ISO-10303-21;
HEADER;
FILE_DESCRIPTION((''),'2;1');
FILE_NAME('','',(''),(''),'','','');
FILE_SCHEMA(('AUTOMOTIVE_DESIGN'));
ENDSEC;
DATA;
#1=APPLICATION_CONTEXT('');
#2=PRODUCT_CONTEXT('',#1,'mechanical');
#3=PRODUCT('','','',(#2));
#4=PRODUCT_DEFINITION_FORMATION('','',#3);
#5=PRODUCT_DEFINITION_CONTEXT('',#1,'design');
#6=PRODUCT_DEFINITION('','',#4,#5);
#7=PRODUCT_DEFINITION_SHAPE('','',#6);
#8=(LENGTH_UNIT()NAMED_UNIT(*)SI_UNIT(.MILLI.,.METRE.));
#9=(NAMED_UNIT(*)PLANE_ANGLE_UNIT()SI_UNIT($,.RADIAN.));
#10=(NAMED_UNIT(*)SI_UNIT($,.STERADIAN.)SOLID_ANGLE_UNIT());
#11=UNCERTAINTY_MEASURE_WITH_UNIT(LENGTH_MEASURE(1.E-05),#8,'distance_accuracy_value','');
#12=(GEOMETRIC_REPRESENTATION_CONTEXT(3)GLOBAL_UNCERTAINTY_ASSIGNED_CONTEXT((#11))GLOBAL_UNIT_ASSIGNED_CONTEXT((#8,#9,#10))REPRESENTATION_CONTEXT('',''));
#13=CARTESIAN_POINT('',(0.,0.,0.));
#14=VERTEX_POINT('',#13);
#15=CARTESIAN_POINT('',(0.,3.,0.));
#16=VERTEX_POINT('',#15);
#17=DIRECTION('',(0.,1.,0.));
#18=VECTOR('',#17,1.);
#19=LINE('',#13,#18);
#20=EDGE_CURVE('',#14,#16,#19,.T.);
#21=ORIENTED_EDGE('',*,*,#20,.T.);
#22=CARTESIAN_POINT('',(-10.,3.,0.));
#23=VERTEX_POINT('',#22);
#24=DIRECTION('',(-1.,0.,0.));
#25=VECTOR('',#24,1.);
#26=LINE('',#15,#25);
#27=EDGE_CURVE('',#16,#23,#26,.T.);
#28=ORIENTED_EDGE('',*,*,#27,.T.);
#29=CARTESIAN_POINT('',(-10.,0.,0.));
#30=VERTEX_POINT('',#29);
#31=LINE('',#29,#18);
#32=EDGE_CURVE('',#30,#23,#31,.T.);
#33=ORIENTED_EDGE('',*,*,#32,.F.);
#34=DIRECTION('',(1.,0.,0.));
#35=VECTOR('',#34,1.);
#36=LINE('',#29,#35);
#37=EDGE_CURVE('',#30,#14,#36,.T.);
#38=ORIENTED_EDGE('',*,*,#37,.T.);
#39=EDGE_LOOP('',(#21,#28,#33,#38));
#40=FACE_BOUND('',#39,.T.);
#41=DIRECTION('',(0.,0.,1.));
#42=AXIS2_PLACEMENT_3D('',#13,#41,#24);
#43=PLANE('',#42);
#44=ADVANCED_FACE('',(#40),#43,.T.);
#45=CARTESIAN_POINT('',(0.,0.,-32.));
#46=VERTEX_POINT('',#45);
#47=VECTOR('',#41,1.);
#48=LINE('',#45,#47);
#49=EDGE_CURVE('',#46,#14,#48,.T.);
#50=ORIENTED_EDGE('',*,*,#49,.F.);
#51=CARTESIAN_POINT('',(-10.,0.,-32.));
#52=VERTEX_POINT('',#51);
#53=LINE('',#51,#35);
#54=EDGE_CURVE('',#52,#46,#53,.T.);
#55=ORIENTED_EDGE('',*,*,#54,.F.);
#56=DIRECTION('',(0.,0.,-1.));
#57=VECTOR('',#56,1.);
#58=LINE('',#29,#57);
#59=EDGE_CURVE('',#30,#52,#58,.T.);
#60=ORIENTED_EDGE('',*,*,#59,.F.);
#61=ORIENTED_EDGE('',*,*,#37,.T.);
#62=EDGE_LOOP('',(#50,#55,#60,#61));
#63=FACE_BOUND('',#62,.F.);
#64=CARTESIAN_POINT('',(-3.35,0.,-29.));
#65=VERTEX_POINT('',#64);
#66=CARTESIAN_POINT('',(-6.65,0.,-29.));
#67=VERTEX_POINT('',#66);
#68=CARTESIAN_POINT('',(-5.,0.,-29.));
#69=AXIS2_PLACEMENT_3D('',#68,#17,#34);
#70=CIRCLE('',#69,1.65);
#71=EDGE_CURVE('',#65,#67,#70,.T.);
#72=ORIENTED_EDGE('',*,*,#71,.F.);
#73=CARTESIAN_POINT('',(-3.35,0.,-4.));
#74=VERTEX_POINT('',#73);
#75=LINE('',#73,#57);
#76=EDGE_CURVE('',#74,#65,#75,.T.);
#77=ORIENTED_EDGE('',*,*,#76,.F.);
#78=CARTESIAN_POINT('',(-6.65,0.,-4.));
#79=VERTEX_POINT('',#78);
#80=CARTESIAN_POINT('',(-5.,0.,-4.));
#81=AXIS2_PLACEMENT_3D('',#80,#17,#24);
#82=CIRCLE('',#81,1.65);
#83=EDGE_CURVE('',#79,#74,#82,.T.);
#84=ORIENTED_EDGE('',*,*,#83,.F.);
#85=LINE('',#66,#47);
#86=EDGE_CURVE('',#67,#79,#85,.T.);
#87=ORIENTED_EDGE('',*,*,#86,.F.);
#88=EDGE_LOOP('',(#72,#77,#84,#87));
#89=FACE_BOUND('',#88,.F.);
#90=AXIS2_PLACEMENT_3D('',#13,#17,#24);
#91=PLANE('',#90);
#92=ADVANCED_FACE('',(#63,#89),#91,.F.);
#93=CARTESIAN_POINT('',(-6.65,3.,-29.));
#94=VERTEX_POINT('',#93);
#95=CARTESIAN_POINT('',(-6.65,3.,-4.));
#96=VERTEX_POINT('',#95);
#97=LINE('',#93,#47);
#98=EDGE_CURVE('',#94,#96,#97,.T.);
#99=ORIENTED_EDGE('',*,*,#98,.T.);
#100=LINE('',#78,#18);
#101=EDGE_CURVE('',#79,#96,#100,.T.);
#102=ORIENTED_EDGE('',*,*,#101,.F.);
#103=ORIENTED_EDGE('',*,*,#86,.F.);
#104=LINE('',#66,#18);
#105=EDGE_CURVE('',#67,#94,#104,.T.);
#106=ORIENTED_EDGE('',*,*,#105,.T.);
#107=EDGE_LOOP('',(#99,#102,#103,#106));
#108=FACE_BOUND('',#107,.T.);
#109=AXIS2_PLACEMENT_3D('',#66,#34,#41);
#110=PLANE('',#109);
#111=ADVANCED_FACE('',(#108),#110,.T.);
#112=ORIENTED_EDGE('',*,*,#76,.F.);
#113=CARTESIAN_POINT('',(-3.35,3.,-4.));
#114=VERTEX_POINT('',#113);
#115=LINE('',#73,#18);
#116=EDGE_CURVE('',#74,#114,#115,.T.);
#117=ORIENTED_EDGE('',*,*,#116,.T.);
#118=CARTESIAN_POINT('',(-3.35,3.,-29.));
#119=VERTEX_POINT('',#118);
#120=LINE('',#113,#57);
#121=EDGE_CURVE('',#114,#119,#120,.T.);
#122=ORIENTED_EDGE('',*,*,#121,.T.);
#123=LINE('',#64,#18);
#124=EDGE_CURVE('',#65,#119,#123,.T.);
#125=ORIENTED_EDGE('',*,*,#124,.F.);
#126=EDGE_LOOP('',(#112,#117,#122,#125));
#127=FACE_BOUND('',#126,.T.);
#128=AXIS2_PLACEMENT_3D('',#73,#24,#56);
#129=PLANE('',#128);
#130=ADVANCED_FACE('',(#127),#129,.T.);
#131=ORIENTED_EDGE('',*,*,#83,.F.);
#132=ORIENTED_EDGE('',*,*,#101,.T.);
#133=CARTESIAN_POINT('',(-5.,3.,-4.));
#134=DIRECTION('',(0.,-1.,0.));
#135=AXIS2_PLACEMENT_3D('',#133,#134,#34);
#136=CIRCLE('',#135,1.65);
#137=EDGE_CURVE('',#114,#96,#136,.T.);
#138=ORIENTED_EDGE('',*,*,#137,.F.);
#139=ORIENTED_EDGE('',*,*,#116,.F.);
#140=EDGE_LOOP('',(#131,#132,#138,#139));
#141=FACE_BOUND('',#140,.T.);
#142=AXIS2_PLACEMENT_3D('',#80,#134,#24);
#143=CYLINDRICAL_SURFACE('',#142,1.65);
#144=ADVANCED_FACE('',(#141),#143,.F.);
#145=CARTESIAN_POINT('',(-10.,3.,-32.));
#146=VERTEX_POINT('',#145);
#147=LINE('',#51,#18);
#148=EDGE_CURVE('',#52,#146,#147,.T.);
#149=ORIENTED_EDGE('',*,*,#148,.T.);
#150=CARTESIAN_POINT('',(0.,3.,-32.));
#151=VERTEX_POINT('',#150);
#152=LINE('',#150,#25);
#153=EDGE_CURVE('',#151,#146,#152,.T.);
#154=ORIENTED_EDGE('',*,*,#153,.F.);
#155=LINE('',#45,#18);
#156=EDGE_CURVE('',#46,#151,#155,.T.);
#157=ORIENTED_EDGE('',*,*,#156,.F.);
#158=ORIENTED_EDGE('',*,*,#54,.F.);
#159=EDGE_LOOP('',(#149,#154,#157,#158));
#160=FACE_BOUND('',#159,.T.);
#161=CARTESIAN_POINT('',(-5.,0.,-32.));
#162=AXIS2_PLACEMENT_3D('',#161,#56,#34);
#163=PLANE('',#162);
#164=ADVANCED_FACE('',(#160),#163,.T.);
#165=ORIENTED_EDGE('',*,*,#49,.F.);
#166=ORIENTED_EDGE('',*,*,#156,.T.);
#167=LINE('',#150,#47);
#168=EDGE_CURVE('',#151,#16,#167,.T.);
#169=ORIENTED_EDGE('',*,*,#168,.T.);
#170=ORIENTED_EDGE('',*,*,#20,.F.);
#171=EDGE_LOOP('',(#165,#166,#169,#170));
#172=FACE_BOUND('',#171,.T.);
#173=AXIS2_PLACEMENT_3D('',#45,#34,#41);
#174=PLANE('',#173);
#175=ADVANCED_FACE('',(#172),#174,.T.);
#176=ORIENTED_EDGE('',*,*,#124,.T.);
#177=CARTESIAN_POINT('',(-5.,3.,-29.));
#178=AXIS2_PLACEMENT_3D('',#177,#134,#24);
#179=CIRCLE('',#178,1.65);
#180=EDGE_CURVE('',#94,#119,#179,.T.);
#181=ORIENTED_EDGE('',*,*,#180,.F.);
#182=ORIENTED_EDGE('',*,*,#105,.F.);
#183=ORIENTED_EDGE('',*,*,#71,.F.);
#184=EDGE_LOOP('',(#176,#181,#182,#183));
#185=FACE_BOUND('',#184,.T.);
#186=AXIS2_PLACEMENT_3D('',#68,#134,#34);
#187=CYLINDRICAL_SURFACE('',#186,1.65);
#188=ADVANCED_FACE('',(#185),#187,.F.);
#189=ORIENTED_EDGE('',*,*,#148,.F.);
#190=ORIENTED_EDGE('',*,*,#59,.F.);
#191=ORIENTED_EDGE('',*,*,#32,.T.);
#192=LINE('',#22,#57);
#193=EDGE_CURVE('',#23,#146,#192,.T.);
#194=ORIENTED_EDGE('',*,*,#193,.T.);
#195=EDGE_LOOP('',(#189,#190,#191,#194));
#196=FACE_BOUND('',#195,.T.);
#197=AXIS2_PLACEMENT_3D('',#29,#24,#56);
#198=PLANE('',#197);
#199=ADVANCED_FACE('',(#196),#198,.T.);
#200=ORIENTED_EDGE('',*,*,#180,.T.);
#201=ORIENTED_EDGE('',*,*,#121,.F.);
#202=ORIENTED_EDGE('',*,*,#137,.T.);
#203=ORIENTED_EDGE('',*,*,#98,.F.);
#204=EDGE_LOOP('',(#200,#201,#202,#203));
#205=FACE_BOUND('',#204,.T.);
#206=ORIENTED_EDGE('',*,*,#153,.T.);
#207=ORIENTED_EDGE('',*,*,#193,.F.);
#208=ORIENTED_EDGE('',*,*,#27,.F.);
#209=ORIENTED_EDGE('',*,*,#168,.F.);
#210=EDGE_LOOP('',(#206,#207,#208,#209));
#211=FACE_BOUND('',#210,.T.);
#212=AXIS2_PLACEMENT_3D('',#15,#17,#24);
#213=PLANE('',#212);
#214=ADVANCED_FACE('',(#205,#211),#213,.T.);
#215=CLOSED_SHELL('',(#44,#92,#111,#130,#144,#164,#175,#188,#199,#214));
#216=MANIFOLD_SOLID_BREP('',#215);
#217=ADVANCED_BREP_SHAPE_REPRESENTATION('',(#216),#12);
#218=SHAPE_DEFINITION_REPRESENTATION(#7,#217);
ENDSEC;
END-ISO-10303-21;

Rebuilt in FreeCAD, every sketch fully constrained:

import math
import FreeCAD as App
import Part
import Sketcher
Q = App.Units.Quantity


def add_polygon(sketch, points):
    """Adds a closed chain of lines whose ends are joined by coincident constraints."""
    first, n = sketch.GeometryCount, len(points)
    for a, b in zip(points, points[1:] + points[:1]):
        sketch.addGeometry(Part.LineSegment(App.Vector(*a, 0), App.Vector(*b, 0)), False)
    for i in range(n):
        sketch.addConstraint(Sketcher.Constraint("Coincident", first + i, 2, first + (i + 1) % n, 1))

doc = App.newDocument("Part")
body = doc.addObject("PartDesign::Body", "Body")

# Sketch on XZ plane
sketch1 = body.newObject("Sketcher::SketchObject", "Sketch")
sketch1.AttachmentSupport = (doc.getObject("XZ_Plane"), [""])
sketch1.MapMode = "FlatFace"
add_polygon(sketch1, [(0, 0), (0, -32), (-10, -32), (-10, 0)])  # lines 0-3
sketch1.addGeometry(Part.ArcOfCircle(Part.Circle(App.Vector(-5, -4, 0), App.Vector(0, 0, 1), 1.65), math.radians(0), math.radians(180)), False)  # 4
sketch1.addGeometry(Part.LineSegment(App.Vector(-6.65, -4, 0), App.Vector(-6.65, -29, 0)), False)  # 5
sketch1.addGeometry(Part.ArcOfCircle(Part.Circle(App.Vector(-5, -29, 0), App.Vector(0, 0, 1), 1.65), math.radians(180), math.radians(360)), False)  # 6
sketch1.addGeometry(Part.LineSegment(App.Vector(-3.35, -29, 0), App.Vector(-3.35, -4, 0)), False)  # 7
sketch1.addConstraint(Sketcher.Constraint("Tangent", 4, 2, 5, 1))
sketch1.addConstraint(Sketcher.Constraint("Tangent", 5, 2, 6, 1))
sketch1.addConstraint(Sketcher.Constraint("Tangent", 6, 2, 7, 1))
sketch1.addConstraint(Sketcher.Constraint("Tangent", 7, 2, 4, 1))
sketch1.addConstraint(Sketcher.Constraint("Vertical", 0))
sketch1.addConstraint(Sketcher.Constraint("Horizontal", 1))
sketch1.addConstraint(Sketcher.Constraint("Vertical", 2))
sketch1.addConstraint(Sketcher.Constraint("Horizontal", 3))
sketch1.addConstraint(Sketcher.Constraint("Vertical", 5))
sketch1.addConstraint(Sketcher.Constraint("Vertical", 7))
sketch1.addConstraint(Sketcher.Constraint("Coincident", 3, 2, -1, 1))
sketch1.addConstraint(Sketcher.Constraint("DistanceX", 1, 2, 1, 1, Q("10 mm")))
sketch1.addConstraint(Sketcher.Constraint("DistanceY", 0, 2, 0, 1, Q("32 mm")))
sketch1.addConstraint(Sketcher.Constraint("Radius", 4, Q("1.65 mm")))
sketch1.addConstraint(Sketcher.Constraint("DistanceY", 4, 3, -1, 1, Q("4 mm")))
sketch1.addConstraint(Sketcher.Constraint("DistanceY", 0, 2, 6, 3, Q("3 mm")))
sketch1.addConstraint(Sketcher.Constraint("DistanceX", 4, 3, -1, 1, Q("5 mm")))
pad1 = body.newObject("PartDesign::Pad", "Pad")
pad1.Profile = sketch1
pad1.Length = 3
pad1.Reversed = True

doc.recompute()
